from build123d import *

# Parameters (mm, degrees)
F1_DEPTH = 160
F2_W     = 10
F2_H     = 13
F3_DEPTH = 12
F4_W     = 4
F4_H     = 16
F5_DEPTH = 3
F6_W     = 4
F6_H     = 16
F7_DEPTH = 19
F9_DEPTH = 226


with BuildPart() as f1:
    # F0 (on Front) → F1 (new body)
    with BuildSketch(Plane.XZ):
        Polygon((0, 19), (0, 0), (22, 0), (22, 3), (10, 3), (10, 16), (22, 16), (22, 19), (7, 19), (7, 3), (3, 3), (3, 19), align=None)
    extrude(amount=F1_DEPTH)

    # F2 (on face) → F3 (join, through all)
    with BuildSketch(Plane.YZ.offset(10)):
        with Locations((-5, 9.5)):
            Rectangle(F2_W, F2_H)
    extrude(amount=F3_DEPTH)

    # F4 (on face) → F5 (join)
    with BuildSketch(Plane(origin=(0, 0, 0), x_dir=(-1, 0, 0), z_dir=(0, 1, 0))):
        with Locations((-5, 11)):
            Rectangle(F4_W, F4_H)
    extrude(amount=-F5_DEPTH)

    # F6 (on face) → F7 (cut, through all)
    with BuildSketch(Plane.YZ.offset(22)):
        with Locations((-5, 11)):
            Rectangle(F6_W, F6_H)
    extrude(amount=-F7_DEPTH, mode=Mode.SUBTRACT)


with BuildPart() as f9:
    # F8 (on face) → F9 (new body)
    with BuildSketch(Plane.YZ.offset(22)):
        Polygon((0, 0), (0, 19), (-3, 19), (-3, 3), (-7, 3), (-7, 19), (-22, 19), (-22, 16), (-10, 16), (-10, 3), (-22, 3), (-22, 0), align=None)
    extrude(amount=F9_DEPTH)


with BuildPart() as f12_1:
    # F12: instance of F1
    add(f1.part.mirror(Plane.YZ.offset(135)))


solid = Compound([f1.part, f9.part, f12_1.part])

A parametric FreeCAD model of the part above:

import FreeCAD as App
import Part
import Sketcher
from FreeCAD import Vector
Q = App.Units.Quantity


def add_polygon(sketch, points):
    """Adds a closed chain of lines whose ends are joined by coincident constraints."""
    first, n = sketch.GeometryCount, len(points)
    for a, b in zip(points, points[1:] + points[:1]):
        sketch.addGeometry(Part.LineSegment(App.Vector(*a, 0), App.Vector(*b, 0)), False)
    for i in range(n):
        sketch.addConstraint(Sketcher.Constraint("Coincident", first + i, 2, first + (i + 1) % n, 1))

doc = App.newDocument("Part")
params = doc.addObject("Spreadsheet::Sheet", "Params")
for row, (alias, value) in enumerate([
    ("sketch1_width", "22 mm"),
    ("sketch1_width2", "12 mm"),
    ("sketch1_width3", "15 mm"),
    ("sketch1_width4", "4 mm"),
    ("sketch1_height", "19 mm"),
    ("pad1_length", "160 mm"),
    ("sketch2_width", "10 mm"),
    ("sketch2_height", "13 mm"),
    ("pad2_length", "12 mm"),
    ("sketch3_width", "4 mm"),
    ("sketch3_height", "16 mm"),
    ("pad3_length", "3 mm"),
    ("sketch4_width", "4 mm"),
    ("sketch4_height", "16 mm"),
    ("pocket1_length", "19 mm"),
    ("sketch5_width", "3 mm"),
    ("sketch5_width2", "4 mm"),
    ("sketch5_width3", "15 mm"),
    ("sketch5_width4", "12 mm"),
    ("sketch5_height", "19 mm"),
    ("pad4_length", "226 mm"),
], start=1):
    params.set(f"A{row}", alias)
    params.set(f"B{row}", "=" + value)
    params.setAlias(f"B{row}", alias)

body = doc.addObject("PartDesign::Body", "Body")

sketch1 = body.newObject("Sketcher::SketchObject", "Sketch")
sketch1.AttachmentSupport = (doc.getObject("XZ_Plane"), [""])
sketch1.MapMode = "FlatFace"
add_polygon(sketch1, [(0, 19), (0, 0), (22, 0), (22, 3), (10, 3), (10, 16), (22, 16), (22, 19), (7, 19), (7, 3), (3, 3), (3, 19)])
sketch1.addConstraint(Sketcher.Constraint("Vertical", 0))
sketch1.addConstraint(Sketcher.Constraint("Horizontal", 1))
sketch1.addConstraint(Sketcher.Constraint("Vertical", 2))
sketch1.addConstraint(Sketcher.Constraint("Horizontal", 3))
sketch1.addConstraint(Sketcher.Constraint("Vertical", 4))
sketch1.addConstraint(Sketcher.Constraint("Horizontal", 5))
sketch1.addConstraint(Sketcher.Constraint("Vertical", 6))
sketch1.addConstraint(Sketcher.Constraint("Horizontal", 7))
sketch1.addConstraint(Sketcher.Constraint("Vertical", 8))
sketch1.addConstraint(Sketcher.Constraint("Horizontal", 9))
sketch1.addConstraint(Sketcher.Constraint("Vertical", 10))
sketch1.addConstraint(Sketcher.Constraint("Horizontal", 11))
sketch1.addConstraint(Sketcher.Constraint("Coincident", 0, 2, -1, 1))
sketch1.addConstraint(Sketcher.Constraint("Horizontal", 3, 2, 8, 2))
sketch1.addConstraint(Sketcher.Constraint("Horizontal", 7, 2, 10, 2))
sketch1.addConstraint(Sketcher.Constraint("Vertical", 2, 2, 5, 2))
sketch1.addConstraint(Sketcher.Constraint("Equal", 11, 2))
sketch1.addConstraint(Sketcher.Constraint("Equal", 2, 6))
sketch1.addConstraint(Sketcher.Constraint("DistanceX", 1, 1, 1, 2, Q("22 mm")))
sketch1.addConstraint(Sketcher.Constraint("DistanceX", 3, 2, 3, 1, Q("12 mm")))
sketch1.addConstraint(Sketcher.Constraint("DistanceX", 7, 2, 7, 1, Q("15 mm")))
sketch1.addConstraint(Sketcher.Constraint("DistanceX", 9, 2, 9, 1, Q("4 mm")))
sketch1.addConstraint(Sketcher.Constraint("DistanceY", 0, 2, 0, 1, Q("19 mm")))
sketch1.setExpression("Constraints[30]", "Params.sketch1_width")
sketch1.setExpression("Constraints[31]", "Params.sketch1_width2")
sketch1.setExpression("Constraints[32]", "Params.sketch1_width3")
sketch1.setExpression("Constraints[33]", "Params.sketch1_width4")
sketch1.setExpression("Constraints[34]", "Params.sketch1_height")
pad1 = body.newObject("PartDesign::Pad", "Pad")
pad1.Profile = sketch1
pad1.setExpression("Length", "Params.pad1_length")

sketch2 = body.newObject("Sketcher::SketchObject", "Sketch001")
sketch2.AttachmentSupport = (doc.getObject("YZ_Plane"), [""])
sketch2.MapMode = "FlatFace"
sketch2.AttachmentOffset = App.Placement(Vector(0, 0, 10), App.Rotation())
add_polygon(sketch2, [(-10, 16), (-10, 3), (0, 3), (0, 16)])
sketch2.addConstraint(Sketcher.Constraint("Vertical", 0))
sketch2.addConstraint(Sketcher.Constraint("Horizontal", 1))
sketch2.addConstraint(Sketcher.Constraint("Vertical", 2))
sketch2.addConstraint(Sketcher.Constraint("Horizontal", 3))
sketch2.addConstraint(Sketcher.Constraint("PointOnObject", 1, 2, -2))
sketch2.addConstraint(Sketcher.Constraint("DistanceX", 1, 1, 1, 2, Q("10 mm")))
sketch2.addConstraint(Sketcher.Constraint("DistanceY", 0, 2, 0, 1, Q("13 mm")))
sketch2.addConstraint(Sketcher.Constraint("DistanceY", -1, 1, 0, 2, Q("3 mm")))
sketch2.setExpression("Constraints[9]", "Params.sketch2_width")
sketch2.setExpression("Constraints[10]", "Params.sketch2_height")
pad2 = body.newObject("PartDesign::Pad", "Pad001")
pad2.Profile = sketch2
pad2.setExpression("Length", "Params.pad2_length")

sketch3 = body.newObject("Sketcher::SketchObject", "Sketch002")
sketch3.AttachmentSupport = (doc.getObject("XZ_Plane"), [""])
sketch3.MapMode = "FlatFace"
add_polygon(sketch3, [(7, 19), (7, 3), (3, 3), (3, 19)])
sketch3.addConstraint(Sketcher.Constraint("Vertical", 0))
sketch3.addConstraint(Sketcher.Constraint("Horizontal", 1))
sketch3.addConstraint(Sketcher.Constraint("Vertical", 2))
sketch3.addConstraint(Sketcher.Constraint("Horizontal", 3))
sketch3.addConstraint(Sketcher.Constraint("DistanceX", 1, 2, 1, 1, Q("4 mm")))
sketch3.addConstraint(Sketcher.Constraint("DistanceY", 0, 2, 0, 1, Q("16 mm")))
sketch3.addConstraint(Sketcher.Constraint("DistanceX", -1, 1, 0, 2, Q("7 mm")))
sketch3.addConstraint(Sketcher.Constraint("DistanceY", -1, 1, 0, 2, Q("3 mm")))
sketch3.setExpression("Constraints[8]", "Params.sketch3_width")
sketch3.setExpression("Constraints[9]", "Params.sketch3_height")
pad3 = body.newObject("PartDesign::Pad", "Pad002")
pad3.Profile = sketch3
pad3.setExpression("Length", "Params.pad3_length")

sketch4 = body.newObject("Sketcher::SketchObject", "Sketch003")
sketch4.AttachmentSupport = (doc.getObject("YZ_Plane"), [""])
sketch4.MapMode = "FlatFace"
sketch4.AttachmentOffset = App.Placement(Vector(0, 0, 22), App.Rotation())
add_polygon(sketch4, [(-7, 19), (-7, 3), (-3, 3), (-3, 19)])
sketch4.addConstraint(Sketcher.Constraint("Vertical", 0))
sketch4.addConstraint(Sketcher.Constraint("Horizontal", 1))
sketch4.addConstraint(Sketcher.Constraint("Vertical", 2))
sketch4.addConstraint(Sketcher.Constraint("Horizontal", 3))
sketch4.addConstraint(Sketcher.Constraint("DistanceX", 1, 1, 1, 2, Q("4 mm")))
sketch4.addConstraint(Sketcher.Constraint("DistanceY", 0, 2, 0, 1, Q("16 mm")))
sketch4.addConstraint(Sketcher.Constraint("DistanceX", 0, 2, -1, 1, Q("7 mm")))
sketch4.addConstraint(Sketcher.Constraint("DistanceY", -1, 1, 0, 2, Q("3 mm")))
sketch4.setExpression("Constraints[8]", "Params.sketch4_width")
sketch4.setExpression("Constraints[9]", "Params.sketch4_height")
pocket1 = body.newObject("PartDesign::Pocket", "Pocket")
pocket1.Profile = sketch4
pocket1.setExpression("Length", "Params.pocket1_length")
body2 = doc.addObject("PartDesign::Body", "Body001")

sketch5 = body2.newObject("Sketcher::SketchObject", "Sketch004")
sketch5.AttachmentSupport = (doc.getObject("YZ_Plane001"), [""])
sketch5.MapMode = "FlatFace"
sketch5.AttachmentOffset = App.Placement(Vector(0, 0, 22), App.Rotation())
add_polygon(sketch5, [(0, 0), (0, 19), (-3, 19), (-3, 3), (-7, 3), (-7, 19), (-22, 19), (-22, 16), (-10, 16), (-10, 3), (-22, 3), (-22, 0)])
sketch5.addConstraint(Sketcher.Constraint("Vertical", 0))
sketch5.addConstraint(Sketcher.Constraint("Horizontal", 1))
sketch5.addConstraint(Sketcher.Constraint("Vertical", 2))
sketch5.addConstraint(Sketcher.Constraint("Horizontal", 3))
sketch5.addConstraint(Sketcher.Constraint("Vertical", 4))
sketch5.addConstraint(Sketcher.Constraint("Horizontal", 5))
sketch5.addConstraint(Sketcher.Constraint("Vertical", 6))
sketch5.addConstraint(Sketcher.Constraint("Horizontal", 7))
sketch5.addConstraint(Sketcher.Constraint("Vertical", 8))
sketch5.addConstraint(Sketcher.Constraint("Horizontal", 9))
sketch5.addConstraint(Sketcher.Constraint("Vertical", 10))
sketch5.addConstraint(Sketcher.Constraint("Horizontal", 11))
sketch5.addConstraint(Sketcher.Constraint("Coincident", 11, 2, -1, 1))
sketch5.addConstraint(Sketcher.Constraint("Horizontal", 1, 2, 4, 2))
sketch5.addConstraint(Sketcher.Constraint("Horizontal", 3, 2, 8, 2))
sketch5.addConstraint(Sketcher.Constraint("Vertical", 6, 2, 9, 2))
sketch5.addConstraint(Sketcher.Constraint("Equal", 1, 6))
sketch5.addConstraint(Sketcher.Constraint("Equal", 6, 10))
sketch5.addConstraint(Sketcher.Constraint("DistanceX", 1, 2, 1, 1, Q("3 mm")))
sketch5.addConstraint(Sketcher.Constraint("DistanceX", 3, 2, 3, 1, Q("4 mm")))
sketch5.addConstraint(Sketcher.Constraint("DistanceX", 5, 2, 5, 1, Q("15 mm")))
sketch5.addConstraint(Sketcher.Constraint("DistanceX", 7, 1, 7, 2, Q("12 mm")))
sketch5.addConstraint(Sketcher.Constraint("DistanceY", 0, 1, 0, 2, Q("19 mm")))
sketch5.setExpression("Constraints[30]", "Params.sketch5_width")
sketch5.setExpression("Constraints[31]", "Params.sketch5_width2")
sketch5.setExpression("Constraints[32]", "Params.sketch5_width3")
sketch5.setExpression("Constraints[33]", "Params.sketch5_width4")
sketch5.setExpression("Constraints[34]", "Params.sketch5_height")
pad4 = body2.newObject("PartDesign::Pad", "Pad003")
pad4.Profile = sketch5
pad4.setExpression("Length", "Params.pad4_length")
body3 = doc.addObject("PartDesign::Body", "Body002")
doc.recompute()

mirroring = doc.addObject("Part::Mirroring", "Mirroring")
mirroring.Source = body
mirroring.Base = Vector(135, 0, 0)
mirroring.Normal = Vector(1, 0, 0)
body3.BaseFeature = mirroring
doc.recompute()
mirroring.Visibility = False

doc.recompute()
